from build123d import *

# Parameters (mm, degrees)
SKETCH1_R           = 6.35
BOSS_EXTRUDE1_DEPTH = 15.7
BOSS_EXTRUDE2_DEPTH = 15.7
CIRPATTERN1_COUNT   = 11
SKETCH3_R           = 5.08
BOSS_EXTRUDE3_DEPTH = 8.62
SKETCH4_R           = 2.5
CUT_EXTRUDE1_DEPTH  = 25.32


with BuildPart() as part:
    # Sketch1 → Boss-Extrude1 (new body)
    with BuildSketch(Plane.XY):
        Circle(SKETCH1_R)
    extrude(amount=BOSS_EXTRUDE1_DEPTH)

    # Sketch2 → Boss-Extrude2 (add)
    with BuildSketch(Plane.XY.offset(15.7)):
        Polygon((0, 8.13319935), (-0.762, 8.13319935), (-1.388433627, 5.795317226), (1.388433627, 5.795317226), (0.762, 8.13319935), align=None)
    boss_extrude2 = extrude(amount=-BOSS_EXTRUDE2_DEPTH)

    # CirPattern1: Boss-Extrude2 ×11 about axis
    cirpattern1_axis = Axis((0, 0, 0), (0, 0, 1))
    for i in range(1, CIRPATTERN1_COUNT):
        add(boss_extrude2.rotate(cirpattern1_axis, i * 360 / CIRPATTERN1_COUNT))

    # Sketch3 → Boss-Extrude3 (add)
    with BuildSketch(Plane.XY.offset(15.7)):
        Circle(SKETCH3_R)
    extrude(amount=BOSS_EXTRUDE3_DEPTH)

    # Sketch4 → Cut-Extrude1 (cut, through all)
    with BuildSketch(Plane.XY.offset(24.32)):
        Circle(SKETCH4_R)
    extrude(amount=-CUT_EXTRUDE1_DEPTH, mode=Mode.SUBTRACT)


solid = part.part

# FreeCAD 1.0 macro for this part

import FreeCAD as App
import Part
import Sketcher
from FreeCAD import Vector
Q = App.Units.Quantity

doc = App.newDocument("Part")
body = doc.addObject("PartDesign::Body", "Body")

# Sketch on XY plane
sketch1 = body.newObject("Sketcher::SketchObject", "Sketch")
sketch1.AttachmentSupport = (doc.getObject("XY_Plane"), [""])
sketch1.MapMode = "FlatFace"
sketch1.addGeometry(Part.Circle(Vector(0, 0, 0), Vector(0, 0, 1), 6), False)
sketch1.addConstraint(Sketcher.Constraint("Coincident", 0, 3, -1, 1))
sketch1.addConstraint(Sketcher.Constraint("Diameter", 0, Q("0.5 in")))
pad1 = body.newObject("PartDesign::Pad", "Pad")
pad1.Profile = sketch1
pad1.Length = 15.7

# Sketch on XY plane
sketch2 = body.newObject("Sketcher::SketchObject", "Sketch001")
sketch2.AttachmentSupport = (doc.getObject("XY_Plane"), [""])
sketch2.MapMode = "FlatFace"
sketch2.AttachmentOffset = App.Placement(Vector(0, 0, 15.7), App.Rotation())
sketch2.addGeometry(Part.LineSegment(Vector(-0.8, 8.1, 0), Vector(-1.4, 5.8, 0)), False)
sketch2.addGeometry(Part.LineSegment(Vector(-1.4, 5.8, 0), Vector(1.4, 5.8, 0)), False)
sketch2.addGeometry(Part.LineSegment(Vector(1.4, 5.8, 0), Vector(0.8, 8.1, 0)), False)
sketch2.addGeometry(Part.LineSegment(Vector(0.8, 8.1, 0), Vector(-0.8, 8.1, 0)), False)
sketch2.addConstraint(Sketcher.Constraint("Coincident", 0, 2, 1, 1))
sketch2.addConstraint(Sketcher.Constraint("Coincident", 1, 2, 2, 1))
sketch2.addConstraint(Sketcher.Constraint("Coincident", 2, 2, 3, 1))
sketch2.addConstraint(Sketcher.Constraint("Coincident", 3, 2, 0, 1))
sketch2.addConstraint(Sketcher.Constraint("Horizontal", 1))
sketch2.addConstraint(Sketcher.Constraint("Horizontal", 3))
sketch2.addConstraint(Sketcher.Constraint("Equal", 0, 2))
sketch2.addConstraint(Sketcher.Constraint("Angle", 0, Q("-105 deg")))
sketch2.addConstraint(Sketcher.Constraint("DistanceX", 3, 2, 3, 1, Q("0.06 in")))
sketch2.addConstraint(Sketcher.Constraint("DistanceX", -1, 1, 2, 2, Q("0.03 in")))
sketch2.addConstraint(Sketcher.Constraint("DistanceY", -1, 1, 2, 2, Q("8.133199 mm")))
sketch2.addConstraint(Sketcher.Constraint("DistanceX", 1, 1, 1, 2, Q("2.776867 mm")))
pad2 = body.newObject("PartDesign::Pad", "Pad001")
pad2.Profile = sketch2
pad2.Length = 15.7
pad2.Reversed = True
doc.recompute()

polarpattern = body.newObject("PartDesign::PolarPattern", "PolarPattern")
polarpattern.Originals = [pad2]
polarpattern.Axis = (doc.getObject("Z_Axis"), [""])
polarpattern.Angle = 360
polarpattern.Occurrences = 11
body.Tip = polarpattern

# Sketch on XY plane
sketch3 = body.newObject("Sketcher::SketchObject", "Sketch002")
sketch3.AttachmentSupport = (doc.getObject("XY_Plane"), [""])
sketch3.MapMode = "FlatFace"
sketch3.AttachmentOffset = App.Placement(Vector(0, 0, 15.7), App.Rotation())
sketch3.addGeometry(Part.Circle(Vector(0, 0, 0), Vector(0, 0, 1), 5), False)
sketch3.addConstraint(Sketcher.Constraint("Coincident", 0, 3, -1, 1))
sketch3.addConstraint(Sketcher.Constraint("Diameter", 0, Q("0.4 in")))
pad3 = body.newObject("PartDesign::Pad", "Pad002")
pad3.Profile = sketch3
pad3.Length = 8.62

# Sketch on XY plane
sketch4 = body.newObject("Sketcher::SketchObject", "Sketch003")
sketch4.AttachmentSupport = (doc.getObject("XY_Plane"), [""])
sketch4.MapMode = "FlatFace"
sketch4.AttachmentOffset = App.Placement(Vector(0, 0, 24.32), App.Rotation())
sketch4.addGeometry(Part.Circle(Vector(0, 0, 0), Vector(0, 0, 1), 2.5), False)
sketch4.addConstraint(Sketcher.Constraint("Coincident", 0, 3, -1, 1))
sketch4.addConstraint(Sketcher.Constraint("Diameter", 0, Q("5 mm")))
pocket1 = body.newObject("PartDesign::Pocket", "Pocket")
pocket1.Profile = sketch4
pocket1.Type = "ThroughAll"

doc.recompute()
